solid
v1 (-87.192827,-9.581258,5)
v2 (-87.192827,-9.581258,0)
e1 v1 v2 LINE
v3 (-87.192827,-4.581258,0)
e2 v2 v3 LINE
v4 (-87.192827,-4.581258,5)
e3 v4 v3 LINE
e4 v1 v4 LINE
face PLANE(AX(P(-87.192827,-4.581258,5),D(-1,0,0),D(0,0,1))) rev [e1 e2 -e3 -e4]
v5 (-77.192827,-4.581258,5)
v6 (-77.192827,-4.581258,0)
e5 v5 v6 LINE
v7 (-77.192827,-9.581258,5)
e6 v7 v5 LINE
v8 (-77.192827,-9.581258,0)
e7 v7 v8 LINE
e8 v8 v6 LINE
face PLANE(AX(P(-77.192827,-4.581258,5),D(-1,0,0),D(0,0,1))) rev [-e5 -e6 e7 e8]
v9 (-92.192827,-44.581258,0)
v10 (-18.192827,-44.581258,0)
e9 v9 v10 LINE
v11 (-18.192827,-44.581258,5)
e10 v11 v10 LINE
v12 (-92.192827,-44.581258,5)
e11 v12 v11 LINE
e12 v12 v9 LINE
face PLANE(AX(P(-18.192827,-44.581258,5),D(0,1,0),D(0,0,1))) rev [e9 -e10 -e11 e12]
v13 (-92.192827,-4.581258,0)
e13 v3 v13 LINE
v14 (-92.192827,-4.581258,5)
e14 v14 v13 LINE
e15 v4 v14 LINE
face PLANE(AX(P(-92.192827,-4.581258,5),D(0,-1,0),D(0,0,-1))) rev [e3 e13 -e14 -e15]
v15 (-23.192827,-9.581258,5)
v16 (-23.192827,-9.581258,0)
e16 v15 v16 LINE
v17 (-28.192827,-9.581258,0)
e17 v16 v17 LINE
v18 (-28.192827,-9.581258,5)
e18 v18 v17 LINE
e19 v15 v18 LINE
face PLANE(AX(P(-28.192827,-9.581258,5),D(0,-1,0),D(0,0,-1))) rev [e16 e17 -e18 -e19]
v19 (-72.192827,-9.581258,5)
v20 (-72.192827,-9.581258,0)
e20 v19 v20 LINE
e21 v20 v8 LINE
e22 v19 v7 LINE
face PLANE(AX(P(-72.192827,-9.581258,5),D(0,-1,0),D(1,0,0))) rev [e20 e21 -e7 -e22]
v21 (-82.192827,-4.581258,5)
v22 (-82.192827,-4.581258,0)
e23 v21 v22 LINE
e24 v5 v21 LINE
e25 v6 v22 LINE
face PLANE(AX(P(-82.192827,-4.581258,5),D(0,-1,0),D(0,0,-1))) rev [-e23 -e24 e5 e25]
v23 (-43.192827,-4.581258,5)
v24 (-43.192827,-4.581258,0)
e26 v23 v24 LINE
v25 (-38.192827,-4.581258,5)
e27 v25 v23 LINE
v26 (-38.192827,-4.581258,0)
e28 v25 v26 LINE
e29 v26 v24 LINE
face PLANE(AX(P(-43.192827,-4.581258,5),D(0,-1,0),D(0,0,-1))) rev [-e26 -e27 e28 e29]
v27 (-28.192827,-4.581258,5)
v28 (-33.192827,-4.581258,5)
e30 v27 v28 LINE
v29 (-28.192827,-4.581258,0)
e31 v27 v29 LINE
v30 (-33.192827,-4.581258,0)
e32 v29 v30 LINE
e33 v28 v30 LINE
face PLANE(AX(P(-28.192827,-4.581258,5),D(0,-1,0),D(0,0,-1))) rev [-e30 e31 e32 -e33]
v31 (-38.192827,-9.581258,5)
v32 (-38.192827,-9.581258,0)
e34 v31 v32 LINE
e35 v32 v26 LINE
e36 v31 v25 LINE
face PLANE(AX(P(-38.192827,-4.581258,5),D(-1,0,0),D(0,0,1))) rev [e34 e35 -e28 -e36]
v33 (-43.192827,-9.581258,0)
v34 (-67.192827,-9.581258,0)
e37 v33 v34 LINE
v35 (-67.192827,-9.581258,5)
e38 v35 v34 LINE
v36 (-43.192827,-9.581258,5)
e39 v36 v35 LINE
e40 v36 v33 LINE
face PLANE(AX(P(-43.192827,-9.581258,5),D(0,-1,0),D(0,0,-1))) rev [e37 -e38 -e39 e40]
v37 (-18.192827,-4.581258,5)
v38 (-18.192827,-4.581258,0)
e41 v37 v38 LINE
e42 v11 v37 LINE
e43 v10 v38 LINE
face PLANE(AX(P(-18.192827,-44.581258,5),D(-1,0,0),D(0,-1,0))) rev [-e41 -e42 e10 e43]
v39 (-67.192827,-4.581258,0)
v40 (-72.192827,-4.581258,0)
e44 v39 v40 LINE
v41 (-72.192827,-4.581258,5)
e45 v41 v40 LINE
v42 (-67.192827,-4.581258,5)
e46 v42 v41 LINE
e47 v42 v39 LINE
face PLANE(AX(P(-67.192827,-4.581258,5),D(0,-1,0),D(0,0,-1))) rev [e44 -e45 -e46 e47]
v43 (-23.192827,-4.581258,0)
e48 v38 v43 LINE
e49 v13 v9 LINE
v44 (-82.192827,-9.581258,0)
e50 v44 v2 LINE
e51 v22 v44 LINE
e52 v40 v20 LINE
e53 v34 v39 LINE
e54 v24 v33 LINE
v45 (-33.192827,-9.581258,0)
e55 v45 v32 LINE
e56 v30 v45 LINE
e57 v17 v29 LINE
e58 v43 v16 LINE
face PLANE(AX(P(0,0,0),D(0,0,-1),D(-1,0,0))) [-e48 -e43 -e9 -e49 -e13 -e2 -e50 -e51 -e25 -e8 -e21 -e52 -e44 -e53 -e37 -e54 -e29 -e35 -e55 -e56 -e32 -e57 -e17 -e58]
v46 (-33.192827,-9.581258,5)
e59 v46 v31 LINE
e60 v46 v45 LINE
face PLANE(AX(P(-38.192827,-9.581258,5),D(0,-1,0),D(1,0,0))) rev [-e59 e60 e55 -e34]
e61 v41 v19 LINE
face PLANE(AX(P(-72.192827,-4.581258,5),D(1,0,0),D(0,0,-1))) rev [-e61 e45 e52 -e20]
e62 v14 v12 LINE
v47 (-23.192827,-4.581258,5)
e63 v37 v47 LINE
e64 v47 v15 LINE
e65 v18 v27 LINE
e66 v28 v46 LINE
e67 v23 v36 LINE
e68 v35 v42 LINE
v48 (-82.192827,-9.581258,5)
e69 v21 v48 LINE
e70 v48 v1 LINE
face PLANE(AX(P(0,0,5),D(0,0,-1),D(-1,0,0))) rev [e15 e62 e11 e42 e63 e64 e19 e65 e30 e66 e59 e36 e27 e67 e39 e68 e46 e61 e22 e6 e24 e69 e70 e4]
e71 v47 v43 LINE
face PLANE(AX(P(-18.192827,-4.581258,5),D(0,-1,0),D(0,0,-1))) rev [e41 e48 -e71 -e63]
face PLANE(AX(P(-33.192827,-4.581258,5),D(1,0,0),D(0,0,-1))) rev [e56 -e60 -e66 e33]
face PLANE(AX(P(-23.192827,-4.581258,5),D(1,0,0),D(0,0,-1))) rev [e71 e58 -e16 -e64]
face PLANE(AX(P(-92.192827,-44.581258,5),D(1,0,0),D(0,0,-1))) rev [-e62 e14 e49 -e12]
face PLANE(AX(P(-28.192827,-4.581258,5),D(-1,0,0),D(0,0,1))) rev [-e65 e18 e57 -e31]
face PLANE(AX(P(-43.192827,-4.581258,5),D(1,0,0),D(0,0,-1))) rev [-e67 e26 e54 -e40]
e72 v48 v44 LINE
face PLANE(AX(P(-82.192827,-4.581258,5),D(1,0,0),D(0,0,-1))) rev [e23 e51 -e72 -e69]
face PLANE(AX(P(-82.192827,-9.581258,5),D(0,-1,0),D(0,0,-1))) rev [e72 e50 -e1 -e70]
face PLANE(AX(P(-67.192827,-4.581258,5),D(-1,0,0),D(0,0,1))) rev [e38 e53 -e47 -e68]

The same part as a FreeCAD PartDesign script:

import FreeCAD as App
import Part
import Sketcher


def add_polygon(sketch, points):
    """Adds a closed chain of lines whose ends are joined by coincident constraints."""
    first, n = sketch.GeometryCount, len(points)
    for a, b in zip(points, points[1:] + points[:1]):
        sketch.addGeometry(Part.LineSegment(App.Vector(*a, 0), App.Vector(*b, 0)), False)
    for i in range(n):
        sketch.addConstraint(Sketcher.Constraint("Coincident", first + i, 2, first + (i + 1) % n, 1))

doc = App.newDocument("Part")
body = doc.addObject("PartDesign::Body", "Body")

sketch1 = body.newObject("Sketcher::SketchObject", "Sketch")
sketch1.AttachmentSupport = (doc.getObject("XY_Plane"), [""])
sketch1.MapMode = "FlatFace"
add_polygon(sketch1, [(-43.2, -9.6), (-67.2, -9.6), (-67.2, -4.6), (-72.2, -4.6), (-72.2, -9.6), (-77.2, -9.6), (-77.2, -4.6), (-82.2, -4.6), (-82.2, -9.6), (-87.2, -9.6), (-87.2, -4.6), (-92.2, -4.6), (-92.2, -44.6), (-18.2, -44.6), (-18.2, -4.6), (-23.2, -4.6), (-23.2, -9.6), (-28.2, -9.6), (-28.2, -4.6), (-33.2, -4.6), (-33.2, -9.6), (-38.2, -9.6), (-38.2, -4.6), (-43.2, -4.6)])
sketch1.addConstraint([
    Sketcher.Constraint("Horizontal", 0),
    Sketcher.Constraint("Vertical", 1),
    Sketcher.Constraint("Horizontal", 2),
    Sketcher.Constraint("Vertical", 3),
    Sketcher.Constraint("Horizontal", 4),
    Sketcher.Constraint("Vertical", 5),
    Sketcher.Constraint("Horizontal", 6),
    Sketcher.Constraint("Vertical", 7),
    Sketcher.Constraint("Horizontal", 8),
    Sketcher.Constraint("Vertical", 9),
    Sketcher.Constraint("Horizontal", 10),
    Sketcher.Constraint("Vertical", 11),
    Sketcher.Constraint("Horizontal", 12),
    Sketcher.Constraint("Vertical", 13),
    Sketcher.Constraint("Horizontal", 14),
    Sketcher.Constraint("Vertical", 15),
    Sketcher.Constraint("Horizontal", 16),
    Sketcher.Constraint("Vertical", 17),
    Sketcher.Constraint("Horizontal", 18),
    Sketcher.Constraint("Vertical", 19),
    Sketcher.Constraint("Horizontal", 20),
    Sketcher.Constraint("Vertical", 21),
    Sketcher.Constraint("Horizontal", 22),
    Sketcher.Constraint("Vertical", 23),
    Sketcher.Constraint("Horizontal", 0, 2, 3, 2),
    Sketcher.Constraint("Horizontal", 2, 2, 5, 2),
    Sketcher.Constraint("Horizontal", 4, 2, 7, 2),
    Sketcher.Constraint("Horizontal", 6, 2, 9, 2),
    Sketcher.Constraint("Horizontal", 10, 2, 13, 2),
    Sketcher.Constraint("Horizontal", 8, 2, 15, 2),
    Sketcher.Constraint("Horizontal", 14, 2, 17, 2),
    Sketcher.Constraint("Horizontal", 16, 2, 19, 2),
    Sketcher.Constraint("Horizontal", 18, 2, 21, 2),
    Sketcher.Constraint("Equal", 2, 4),
    Sketcher.Constraint("Equal", 4, 6),
    Sketcher.Constraint("Equal", 6, 8),
    Sketcher.Constraint("Equal", 8, 10),
    Sketcher.Constraint("Equal", 10, 14),
    Sketcher.Constraint("Equal", 14, 16),
    Sketcher.Constraint("Equal", 16, 18),
    Sketcher.Constraint("Equal", 18, 20),
    Sketcher.Constraint("Equal", 20, 22),
    Sketcher.Constraint("Equal", 22, 1),
    Sketcher.Constraint("DistanceX", 0, 2, 0, 1, 24.0),
    Sketcher.Constraint("DistanceX", 2, 2, 2, 1, 5.0),
    Sketcher.Constraint("DistanceY", 11, 2, 11, 1, 40.0),
    Sketcher.Constraint("DistanceX", 0, 2, -1, 1, 67.192827),
    Sketcher.Constraint("DistanceY", 0, 2, -1, 1, 9.581258),
])
pad1 = body.newObject("PartDesign::Pad", "Pad")
pad1.Profile = sketch1
pad1.Length = 5

doc.recompute()
